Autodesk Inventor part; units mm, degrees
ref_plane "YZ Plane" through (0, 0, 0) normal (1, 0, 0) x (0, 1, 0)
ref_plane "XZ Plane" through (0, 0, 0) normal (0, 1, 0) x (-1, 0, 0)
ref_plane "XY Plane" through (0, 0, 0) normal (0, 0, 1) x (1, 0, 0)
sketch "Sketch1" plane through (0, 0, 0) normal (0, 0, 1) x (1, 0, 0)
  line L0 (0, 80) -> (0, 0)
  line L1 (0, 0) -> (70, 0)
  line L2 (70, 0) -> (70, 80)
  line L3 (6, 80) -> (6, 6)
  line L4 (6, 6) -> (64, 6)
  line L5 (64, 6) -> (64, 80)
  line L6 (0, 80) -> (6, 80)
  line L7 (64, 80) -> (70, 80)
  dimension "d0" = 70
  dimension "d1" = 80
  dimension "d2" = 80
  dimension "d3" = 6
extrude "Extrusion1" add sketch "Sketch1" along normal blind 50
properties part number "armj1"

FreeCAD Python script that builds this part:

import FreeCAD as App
import Part
import Sketcher

V = App.Vector

doc = App.newDocument("Part")
body = doc.addObject("PartDesign::Body", "Body")

sketch1 = body.newObject("Sketcher::SketchObject", "Sketch")
sketch1.AttachmentSupport = (doc.getObject("XY_Plane"), [""])
sketch1.MapMode = "FlatFace"
sketch1.addGeometry(Part.LineSegment(V(6, 80, 0), V(0, 80, 0)), False)
sketch1.addGeometry(Part.LineSegment(V(0, 80, 0), V(0, 0, 0)), False)
sketch1.addGeometry(Part.LineSegment(V(0, 0, 0), V(70, 0, 0)), False)
sketch1.addGeometry(Part.LineSegment(V(70, 0, 0), V(70, 80, 0)), False)
sketch1.addGeometry(Part.LineSegment(V(70, 80, 0), V(64, 80, 0)), False)
sketch1.addGeometry(Part.LineSegment(V(64, 80, 0), V(64, 6, 0)), False)
sketch1.addGeometry(Part.LineSegment(V(64, 6, 0), V(6, 6, 0)), False)
sketch1.addGeometry(Part.LineSegment(V(6, 6, 0), V(6, 80, 0)), False)
sketch1.addConstraint(Sketcher.Constraint("Coincident", 0, 2, 1, 1))
sketch1.addConstraint(Sketcher.Constraint("Coincident", 1, 2, 2, 1))
sketch1.addConstraint(Sketcher.Constraint("Coincident", 2, 2, 3, 1))
sketch1.addConstraint(Sketcher.Constraint("Coincident", 3, 2, 4, 1))
sketch1.addConstraint(Sketcher.Constraint("Coincident", 4, 2, 5, 1))
sketch1.addConstraint(Sketcher.Constraint("Coincident", 5, 2, 6, 1))
sketch1.addConstraint(Sketcher.Constraint("Coincident", 6, 2, 7, 1))
sketch1.addConstraint(Sketcher.Constraint("Coincident", 7, 2, 0, 1))
sketch1.addConstraint(Sketcher.Constraint("Horizontal", 0))
sketch1.addConstraint(Sketcher.Constraint("Vertical", 1))
sketch1.addConstraint(Sketcher.Constraint("Horizontal", 2))
sketch1.addConstraint(Sketcher.Constraint("Vertical", 3))
sketch1.addConstraint(Sketcher.Constraint("Horizontal", 4))
sketch1.addConstraint(Sketcher.Constraint("Vertical", 5))
sketch1.addConstraint(Sketcher.Constraint("Horizontal", 6))
sketch1.addConstraint(Sketcher.Constraint("Vertical", 7))
sketch1.addConstraint(Sketcher.Constraint("Coincident", 1, 2, -1, 1))
sketch1.addConstraint(Sketcher.Constraint("Horizontal", 0, 2, 3, 2))
sketch1.addConstraint(Sketcher.Constraint("Equal", 0, 4))
sketch1.addConstraint(Sketcher.Constraint("DistanceX", 0, 2, 0, 1, 6.0))
sketch1.addConstraint(Sketcher.Constraint("DistanceX", 2, 1, 2, 2, 70.0))
sketch1.addConstraint(Sketcher.Constraint("DistanceY", 1, 2, 1, 1, 80.0))
sketch1.addConstraint(Sketcher.Constraint("DistanceY", -1, 1, 5, 2, 6.0))
pad1 = body.newObject("PartDesign::Pad", "Pad")
pad1.Profile = sketch1
pad1.Length = 50

doc.recompute()
